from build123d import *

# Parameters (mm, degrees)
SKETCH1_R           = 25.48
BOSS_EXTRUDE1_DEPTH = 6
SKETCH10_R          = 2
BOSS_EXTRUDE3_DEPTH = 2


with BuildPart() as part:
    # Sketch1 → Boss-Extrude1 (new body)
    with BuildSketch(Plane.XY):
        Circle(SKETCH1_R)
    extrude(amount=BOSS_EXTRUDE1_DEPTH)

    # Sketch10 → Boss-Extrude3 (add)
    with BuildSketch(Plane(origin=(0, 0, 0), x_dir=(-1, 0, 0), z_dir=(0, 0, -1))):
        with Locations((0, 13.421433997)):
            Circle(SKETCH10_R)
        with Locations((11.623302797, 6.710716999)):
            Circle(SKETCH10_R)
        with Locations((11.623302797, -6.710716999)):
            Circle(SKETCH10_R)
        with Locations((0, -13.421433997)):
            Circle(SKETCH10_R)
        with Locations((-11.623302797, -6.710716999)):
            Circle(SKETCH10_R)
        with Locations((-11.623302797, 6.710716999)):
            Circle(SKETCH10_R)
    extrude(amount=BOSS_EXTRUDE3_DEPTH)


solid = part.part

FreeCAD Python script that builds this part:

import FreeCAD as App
import Part
import Sketcher
from FreeCAD import Vector
Q = App.Units.Quantity

doc = App.newDocument("Part")
params = doc.addObject("Spreadsheet::Sheet", "Params")
for row, (alias, value) in enumerate([
    ("sketch1_diameter", "50.96 mm"),
    ("pad1_length", "6 mm"),
    ("sketch2_diameter", "4 mm"),
    ("pad2_length", "2 mm"),
], start=1):
    params.set(f"A{row}", alias)
    params.set(f"B{row}", "=" + value)
    params.setAlias(f"B{row}", alias)

body = doc.addObject("PartDesign::Body", "Body")

# Sketch on XY plane
sketch1 = body.newObject("Sketcher::SketchObject", "Sketch")
sketch1.AttachmentSupport = (doc.getObject("XY_Plane"), [""])
sketch1.MapMode = "FlatFace"
sketch1.addGeometry(Part.Circle(Vector(0, 0, 0), Vector(0, 0, 1), 25), False)
sketch1.addConstraint([
    Sketcher.Constraint("Coincident", 0, 3, -1, 1),
    Sketcher.Constraint("Diameter", 0, Q("50.96 mm")),
])
sketch1.setExpression("Constraints[1]", "Params.sketch1_diameter")
pad1 = body.newObject("PartDesign::Pad", "Pad")
pad1.Profile = sketch1
pad1.setExpression("Length", "Params.pad1_length")

# Sketch on XY plane
sketch2 = body.newObject("Sketcher::SketchObject", "Sketch001")
sketch2.AttachmentSupport = (doc.getObject("XY_Plane"), [""])
sketch2.MapMode = "FlatFace"
sketch2.addGeometry([
    Part.Circle(Vector(0, 13.4, 0), Vector(0, 0, 1), 2),  # 0
    Part.Circle(Vector(-11.6, 6.7, 0), Vector(0, 0, 1), 2),  # 1
    Part.Circle(Vector(-11.6, -6.7, 0), Vector(0, 0, 1), 2),  # 2
    Part.Circle(Vector(0, -13.4, 0), Vector(0, 0, 1), 2),  # 3
    Part.Circle(Vector(11.6, -6.7, 0), Vector(0, 0, 1), 2),  # 4
    Part.Circle(Vector(11.6, 6.7, 0), Vector(0, 0, 1), 2),  # 5
], False)
sketch2.addConstraint([
    Sketcher.Constraint("Equal", 0, 1),
    Sketcher.Constraint("Equal", 1, 2),
    Sketcher.Constraint("Equal", 2, 3),
    Sketcher.Constraint("Equal", 3, 4),
    Sketcher.Constraint("Equal", 4, 5),
    Sketcher.Constraint("Symmetric", 0, 3, 3, 3, -1, 1),
    Sketcher.Constraint("Symmetric", 1, 3, 4, 3, -1, 1),
    Sketcher.Constraint("Symmetric", 2, 3, 5, 3, -1, 1),
    Sketcher.Constraint("Symmetric", 2, 3, 4, 3, -2),
    Sketcher.Constraint("PointOnObject", 0, 3, -2),
    Sketcher.Constraint("Diameter", 0, Q("4 mm")),
    Sketcher.Constraint("DistanceY", 2, 3, 0, 3, Q("20.132151 mm")),
    Sketcher.Constraint("DistanceY", -1, 1, 0, 3, Q("13.421434 mm")),
    Sketcher.Constraint("DistanceX", 1, 3, -1, 1, Q("11.623303 mm")),
])
sketch2.setExpression("Constraints[10]", "Params.sketch2_diameter")
pad2 = body.newObject("PartDesign::Pad", "Pad001")
pad2.Profile = sketch2
pad2.setExpression("Length", "Params.pad2_length")
pad2.Reversed = True

doc.recompute()
